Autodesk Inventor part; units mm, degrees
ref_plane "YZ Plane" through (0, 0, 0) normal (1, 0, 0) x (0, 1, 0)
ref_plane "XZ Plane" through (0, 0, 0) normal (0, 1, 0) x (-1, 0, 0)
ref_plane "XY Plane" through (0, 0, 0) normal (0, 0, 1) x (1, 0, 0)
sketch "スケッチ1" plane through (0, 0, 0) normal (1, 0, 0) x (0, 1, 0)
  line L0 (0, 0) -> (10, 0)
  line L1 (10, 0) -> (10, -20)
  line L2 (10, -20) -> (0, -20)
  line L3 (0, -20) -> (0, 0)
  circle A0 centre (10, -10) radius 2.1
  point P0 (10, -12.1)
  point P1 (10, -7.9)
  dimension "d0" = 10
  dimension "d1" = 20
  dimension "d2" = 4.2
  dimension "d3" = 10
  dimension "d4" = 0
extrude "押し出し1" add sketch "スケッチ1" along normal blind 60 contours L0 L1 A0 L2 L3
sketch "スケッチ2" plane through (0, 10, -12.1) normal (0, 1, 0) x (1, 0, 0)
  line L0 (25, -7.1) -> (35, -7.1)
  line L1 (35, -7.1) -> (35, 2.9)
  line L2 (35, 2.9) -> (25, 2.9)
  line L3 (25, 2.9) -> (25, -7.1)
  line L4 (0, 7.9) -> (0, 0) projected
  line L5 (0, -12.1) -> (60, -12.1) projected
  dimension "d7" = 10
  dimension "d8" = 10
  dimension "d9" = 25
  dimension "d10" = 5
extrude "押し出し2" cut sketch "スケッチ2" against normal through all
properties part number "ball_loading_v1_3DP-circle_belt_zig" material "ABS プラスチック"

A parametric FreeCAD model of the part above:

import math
import FreeCAD as App
import Part
import Sketcher

doc = App.newDocument("Part")
params = doc.addObject("Spreadsheet::Sheet", "Params")
for row, (alias, value) in enumerate([
    ("sketch1_radius", "2.1 mm"),
    ("sketch1_width", "10 mm"),
    ("sketch1_height", "20 mm"),
    ("pad1_length", "60 mm"),
    ("sketch2_width", "10 mm"),
], start=1):
    params.set(f"A{row}", alias)
    params.set(f"B{row}", "=" + value)
    params.setAlias(f"B{row}", alias)

body = doc.addObject("PartDesign::Body", "Body")

sketch1 = doc.addObject("Sketcher::SketchObject", "Sketch")
body.addObject(sketch1)
sketch1.AttachmentSupport = (doc.YZ_Plane, [""])
sketch1.MapMode = "FlatFace"
sketch1.addGeometry([
    Part.LineSegment(App.Vector(10, 0, 0), App.Vector(0, 0, 0)),
    Part.LineSegment(App.Vector(0, 0, 0), App.Vector(0, -20, 0)),
    Part.LineSegment(App.Vector(0, -20, 0), App.Vector(10, -20, 0)),
    Part.LineSegment(App.Vector(10, -20, 0), App.Vector(10, -12.1, 0)),
    Part.ArcOfCircle(Part.Circle(App.Vector(10, -10, 0), App.Vector(0, 0, 1), 2.1), math.radians(90), math.radians(270)),
    Part.LineSegment(App.Vector(10, -7.9, 0), App.Vector(10, 0, 0)),
], False)
sketch1.addConstraint([
    Sketcher.Constraint("Coincident", 0, 2, 1, 1),
    Sketcher.Constraint("Coincident", 1, 2, 2, 1),
    Sketcher.Constraint("Coincident", 2, 2, 3, 1),
    Sketcher.Constraint("Coincident", 3, 2, 4, 2),
    Sketcher.Constraint("Coincident", 4, 1, 5, 1),
    Sketcher.Constraint("Coincident", 5, 2, 0, 1),
    Sketcher.Constraint("Horizontal", 0),
    Sketcher.Constraint("Vertical", 1),
    Sketcher.Constraint("Horizontal", 2),
    Sketcher.Constraint("Vertical", 3),
    Sketcher.Constraint("Vertical", 5),
    Sketcher.Constraint("Coincident", 0, 2, -1, 1),
    Sketcher.Constraint("Vertical", 4, 3, 2, 2),
    Sketcher.Constraint("Vertical", 3, 2, 4, 1),
    Sketcher.Constraint("Equal", 3, 5),
    Sketcher.Constraint("Radius", 4, 2.1),
    Sketcher.Constraint("DistanceX", 0, 2, 0, 1, 10.0),
    Sketcher.Constraint("DistanceY", 1, 2, 1, 1, 20.0),
])
sketch1.setExpression("Constraints[15]", "Params.sketch1_radius")
sketch1.setExpression("Constraints[16]", "Params.sketch1_width")
sketch1.setExpression("Constraints[17]", "Params.sketch1_height")
pad1 = doc.addObject("PartDesign::Pad", "Pad")
body.addObject(pad1)
pad1.Profile = sketch1
pad1.setExpression("Length", "Params.pad1_length")

sketch2 = doc.addObject("Sketcher::SketchObject", "Sketch001")
body.addObject(sketch2)
sketch2.AttachmentSupport = (doc.XZ_Plane, [""])
sketch2.MapMode = "FlatFace"
sketch2.AttachmentOffset = App.Placement(App.Vector(0, 0, -10), App.Rotation())
sketch2.addGeometry([
    Part.LineSegment(App.Vector(25, -15, 0), App.Vector(25, -5, 0)),
    Part.LineSegment(App.Vector(25, -5, 0), App.Vector(35, -5, 0)),
    Part.LineSegment(App.Vector(35, -5, 0), App.Vector(35, -15, 0)),
    Part.LineSegment(App.Vector(35, -15, 0), App.Vector(25, -15, 0)),
], False)
sketch2.addConstraint([
    Sketcher.Constraint("Coincident", 0, 2, 1, 1),
    Sketcher.Constraint("Coincident", 1, 2, 2, 1),
    Sketcher.Constraint("Coincident", 2, 2, 3, 1),
    Sketcher.Constraint("Coincident", 3, 2, 0, 1),
    Sketcher.Constraint("Vertical", 0),
    Sketcher.Constraint("Horizontal", 1),
    Sketcher.Constraint("Vertical", 2),
    Sketcher.Constraint("Horizontal", 3),
    Sketcher.Constraint("Equal", 3, 0),
    Sketcher.Constraint("DistanceX", 1, 1, 1, 2, 10.0),
    Sketcher.Constraint("DistanceX", -1, 1, 0, 2, 25.0),
    Sketcher.Constraint("DistanceY", 0, 2, -1, 1, 5.0),
])
sketch2.setExpression("Constraints[9]", "Params.sketch2_width")
pocket1 = doc.addObject("PartDesign::Pocket", "Pocket")
body.addObject(pocket1)
pocket1.Profile = sketch2
pocket1.Type = "ThroughAll"
pocket1.Reversed = True

doc.recompute()
